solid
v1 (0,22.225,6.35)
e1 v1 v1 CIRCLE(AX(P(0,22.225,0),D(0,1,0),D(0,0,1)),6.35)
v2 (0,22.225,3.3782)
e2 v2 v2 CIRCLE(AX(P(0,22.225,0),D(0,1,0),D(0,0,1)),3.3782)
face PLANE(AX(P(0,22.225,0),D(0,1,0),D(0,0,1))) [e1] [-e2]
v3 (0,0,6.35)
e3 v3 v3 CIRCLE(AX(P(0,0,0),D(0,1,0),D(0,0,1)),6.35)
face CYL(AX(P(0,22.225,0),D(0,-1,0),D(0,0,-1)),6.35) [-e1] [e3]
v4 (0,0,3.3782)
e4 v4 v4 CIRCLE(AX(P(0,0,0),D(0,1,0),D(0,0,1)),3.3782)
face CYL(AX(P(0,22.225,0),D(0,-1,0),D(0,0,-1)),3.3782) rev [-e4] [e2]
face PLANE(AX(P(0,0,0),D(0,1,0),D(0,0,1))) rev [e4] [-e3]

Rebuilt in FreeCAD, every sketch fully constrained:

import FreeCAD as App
import Part
import Sketcher
Q = App.Units.Quantity

doc = App.newDocument("Part")
body = doc.addObject("PartDesign::Body", "Body")

# Sketch on XZ plane
sketch1 = body.newObject("Sketcher::SketchObject", "Sketch")
sketch1.AttachmentSupport = (doc.getObject("XZ_Plane"), [""])
sketch1.MapMode = "FlatFace"
sketch1.addGeometry(Part.Circle(App.Vector(0, 0, 0), App.Vector(0, 0, 1), 6.3), False)
sketch1.addGeometry(Part.Circle(App.Vector(0, 0, 0), App.Vector(0, 0, 1), 3.4), False)
sketch1.addConstraint(Sketcher.Constraint("Coincident", 0, 3, -1, 1))
sketch1.addConstraint(Sketcher.Constraint("Coincident", 1, 3, -1, 1))
sketch1.addConstraint(Sketcher.Constraint("Diameter", 0, Q("0.5 in")))
sketch1.addConstraint(Sketcher.Constraint("Diameter", 1, Q("0.266 in")))
pad1 = body.newObject("PartDesign::Pad", "Pad")
pad1.Profile = sketch1
pad1.Length = Q("0.875 in")
pad1.Reversed = True

doc.recompute()
